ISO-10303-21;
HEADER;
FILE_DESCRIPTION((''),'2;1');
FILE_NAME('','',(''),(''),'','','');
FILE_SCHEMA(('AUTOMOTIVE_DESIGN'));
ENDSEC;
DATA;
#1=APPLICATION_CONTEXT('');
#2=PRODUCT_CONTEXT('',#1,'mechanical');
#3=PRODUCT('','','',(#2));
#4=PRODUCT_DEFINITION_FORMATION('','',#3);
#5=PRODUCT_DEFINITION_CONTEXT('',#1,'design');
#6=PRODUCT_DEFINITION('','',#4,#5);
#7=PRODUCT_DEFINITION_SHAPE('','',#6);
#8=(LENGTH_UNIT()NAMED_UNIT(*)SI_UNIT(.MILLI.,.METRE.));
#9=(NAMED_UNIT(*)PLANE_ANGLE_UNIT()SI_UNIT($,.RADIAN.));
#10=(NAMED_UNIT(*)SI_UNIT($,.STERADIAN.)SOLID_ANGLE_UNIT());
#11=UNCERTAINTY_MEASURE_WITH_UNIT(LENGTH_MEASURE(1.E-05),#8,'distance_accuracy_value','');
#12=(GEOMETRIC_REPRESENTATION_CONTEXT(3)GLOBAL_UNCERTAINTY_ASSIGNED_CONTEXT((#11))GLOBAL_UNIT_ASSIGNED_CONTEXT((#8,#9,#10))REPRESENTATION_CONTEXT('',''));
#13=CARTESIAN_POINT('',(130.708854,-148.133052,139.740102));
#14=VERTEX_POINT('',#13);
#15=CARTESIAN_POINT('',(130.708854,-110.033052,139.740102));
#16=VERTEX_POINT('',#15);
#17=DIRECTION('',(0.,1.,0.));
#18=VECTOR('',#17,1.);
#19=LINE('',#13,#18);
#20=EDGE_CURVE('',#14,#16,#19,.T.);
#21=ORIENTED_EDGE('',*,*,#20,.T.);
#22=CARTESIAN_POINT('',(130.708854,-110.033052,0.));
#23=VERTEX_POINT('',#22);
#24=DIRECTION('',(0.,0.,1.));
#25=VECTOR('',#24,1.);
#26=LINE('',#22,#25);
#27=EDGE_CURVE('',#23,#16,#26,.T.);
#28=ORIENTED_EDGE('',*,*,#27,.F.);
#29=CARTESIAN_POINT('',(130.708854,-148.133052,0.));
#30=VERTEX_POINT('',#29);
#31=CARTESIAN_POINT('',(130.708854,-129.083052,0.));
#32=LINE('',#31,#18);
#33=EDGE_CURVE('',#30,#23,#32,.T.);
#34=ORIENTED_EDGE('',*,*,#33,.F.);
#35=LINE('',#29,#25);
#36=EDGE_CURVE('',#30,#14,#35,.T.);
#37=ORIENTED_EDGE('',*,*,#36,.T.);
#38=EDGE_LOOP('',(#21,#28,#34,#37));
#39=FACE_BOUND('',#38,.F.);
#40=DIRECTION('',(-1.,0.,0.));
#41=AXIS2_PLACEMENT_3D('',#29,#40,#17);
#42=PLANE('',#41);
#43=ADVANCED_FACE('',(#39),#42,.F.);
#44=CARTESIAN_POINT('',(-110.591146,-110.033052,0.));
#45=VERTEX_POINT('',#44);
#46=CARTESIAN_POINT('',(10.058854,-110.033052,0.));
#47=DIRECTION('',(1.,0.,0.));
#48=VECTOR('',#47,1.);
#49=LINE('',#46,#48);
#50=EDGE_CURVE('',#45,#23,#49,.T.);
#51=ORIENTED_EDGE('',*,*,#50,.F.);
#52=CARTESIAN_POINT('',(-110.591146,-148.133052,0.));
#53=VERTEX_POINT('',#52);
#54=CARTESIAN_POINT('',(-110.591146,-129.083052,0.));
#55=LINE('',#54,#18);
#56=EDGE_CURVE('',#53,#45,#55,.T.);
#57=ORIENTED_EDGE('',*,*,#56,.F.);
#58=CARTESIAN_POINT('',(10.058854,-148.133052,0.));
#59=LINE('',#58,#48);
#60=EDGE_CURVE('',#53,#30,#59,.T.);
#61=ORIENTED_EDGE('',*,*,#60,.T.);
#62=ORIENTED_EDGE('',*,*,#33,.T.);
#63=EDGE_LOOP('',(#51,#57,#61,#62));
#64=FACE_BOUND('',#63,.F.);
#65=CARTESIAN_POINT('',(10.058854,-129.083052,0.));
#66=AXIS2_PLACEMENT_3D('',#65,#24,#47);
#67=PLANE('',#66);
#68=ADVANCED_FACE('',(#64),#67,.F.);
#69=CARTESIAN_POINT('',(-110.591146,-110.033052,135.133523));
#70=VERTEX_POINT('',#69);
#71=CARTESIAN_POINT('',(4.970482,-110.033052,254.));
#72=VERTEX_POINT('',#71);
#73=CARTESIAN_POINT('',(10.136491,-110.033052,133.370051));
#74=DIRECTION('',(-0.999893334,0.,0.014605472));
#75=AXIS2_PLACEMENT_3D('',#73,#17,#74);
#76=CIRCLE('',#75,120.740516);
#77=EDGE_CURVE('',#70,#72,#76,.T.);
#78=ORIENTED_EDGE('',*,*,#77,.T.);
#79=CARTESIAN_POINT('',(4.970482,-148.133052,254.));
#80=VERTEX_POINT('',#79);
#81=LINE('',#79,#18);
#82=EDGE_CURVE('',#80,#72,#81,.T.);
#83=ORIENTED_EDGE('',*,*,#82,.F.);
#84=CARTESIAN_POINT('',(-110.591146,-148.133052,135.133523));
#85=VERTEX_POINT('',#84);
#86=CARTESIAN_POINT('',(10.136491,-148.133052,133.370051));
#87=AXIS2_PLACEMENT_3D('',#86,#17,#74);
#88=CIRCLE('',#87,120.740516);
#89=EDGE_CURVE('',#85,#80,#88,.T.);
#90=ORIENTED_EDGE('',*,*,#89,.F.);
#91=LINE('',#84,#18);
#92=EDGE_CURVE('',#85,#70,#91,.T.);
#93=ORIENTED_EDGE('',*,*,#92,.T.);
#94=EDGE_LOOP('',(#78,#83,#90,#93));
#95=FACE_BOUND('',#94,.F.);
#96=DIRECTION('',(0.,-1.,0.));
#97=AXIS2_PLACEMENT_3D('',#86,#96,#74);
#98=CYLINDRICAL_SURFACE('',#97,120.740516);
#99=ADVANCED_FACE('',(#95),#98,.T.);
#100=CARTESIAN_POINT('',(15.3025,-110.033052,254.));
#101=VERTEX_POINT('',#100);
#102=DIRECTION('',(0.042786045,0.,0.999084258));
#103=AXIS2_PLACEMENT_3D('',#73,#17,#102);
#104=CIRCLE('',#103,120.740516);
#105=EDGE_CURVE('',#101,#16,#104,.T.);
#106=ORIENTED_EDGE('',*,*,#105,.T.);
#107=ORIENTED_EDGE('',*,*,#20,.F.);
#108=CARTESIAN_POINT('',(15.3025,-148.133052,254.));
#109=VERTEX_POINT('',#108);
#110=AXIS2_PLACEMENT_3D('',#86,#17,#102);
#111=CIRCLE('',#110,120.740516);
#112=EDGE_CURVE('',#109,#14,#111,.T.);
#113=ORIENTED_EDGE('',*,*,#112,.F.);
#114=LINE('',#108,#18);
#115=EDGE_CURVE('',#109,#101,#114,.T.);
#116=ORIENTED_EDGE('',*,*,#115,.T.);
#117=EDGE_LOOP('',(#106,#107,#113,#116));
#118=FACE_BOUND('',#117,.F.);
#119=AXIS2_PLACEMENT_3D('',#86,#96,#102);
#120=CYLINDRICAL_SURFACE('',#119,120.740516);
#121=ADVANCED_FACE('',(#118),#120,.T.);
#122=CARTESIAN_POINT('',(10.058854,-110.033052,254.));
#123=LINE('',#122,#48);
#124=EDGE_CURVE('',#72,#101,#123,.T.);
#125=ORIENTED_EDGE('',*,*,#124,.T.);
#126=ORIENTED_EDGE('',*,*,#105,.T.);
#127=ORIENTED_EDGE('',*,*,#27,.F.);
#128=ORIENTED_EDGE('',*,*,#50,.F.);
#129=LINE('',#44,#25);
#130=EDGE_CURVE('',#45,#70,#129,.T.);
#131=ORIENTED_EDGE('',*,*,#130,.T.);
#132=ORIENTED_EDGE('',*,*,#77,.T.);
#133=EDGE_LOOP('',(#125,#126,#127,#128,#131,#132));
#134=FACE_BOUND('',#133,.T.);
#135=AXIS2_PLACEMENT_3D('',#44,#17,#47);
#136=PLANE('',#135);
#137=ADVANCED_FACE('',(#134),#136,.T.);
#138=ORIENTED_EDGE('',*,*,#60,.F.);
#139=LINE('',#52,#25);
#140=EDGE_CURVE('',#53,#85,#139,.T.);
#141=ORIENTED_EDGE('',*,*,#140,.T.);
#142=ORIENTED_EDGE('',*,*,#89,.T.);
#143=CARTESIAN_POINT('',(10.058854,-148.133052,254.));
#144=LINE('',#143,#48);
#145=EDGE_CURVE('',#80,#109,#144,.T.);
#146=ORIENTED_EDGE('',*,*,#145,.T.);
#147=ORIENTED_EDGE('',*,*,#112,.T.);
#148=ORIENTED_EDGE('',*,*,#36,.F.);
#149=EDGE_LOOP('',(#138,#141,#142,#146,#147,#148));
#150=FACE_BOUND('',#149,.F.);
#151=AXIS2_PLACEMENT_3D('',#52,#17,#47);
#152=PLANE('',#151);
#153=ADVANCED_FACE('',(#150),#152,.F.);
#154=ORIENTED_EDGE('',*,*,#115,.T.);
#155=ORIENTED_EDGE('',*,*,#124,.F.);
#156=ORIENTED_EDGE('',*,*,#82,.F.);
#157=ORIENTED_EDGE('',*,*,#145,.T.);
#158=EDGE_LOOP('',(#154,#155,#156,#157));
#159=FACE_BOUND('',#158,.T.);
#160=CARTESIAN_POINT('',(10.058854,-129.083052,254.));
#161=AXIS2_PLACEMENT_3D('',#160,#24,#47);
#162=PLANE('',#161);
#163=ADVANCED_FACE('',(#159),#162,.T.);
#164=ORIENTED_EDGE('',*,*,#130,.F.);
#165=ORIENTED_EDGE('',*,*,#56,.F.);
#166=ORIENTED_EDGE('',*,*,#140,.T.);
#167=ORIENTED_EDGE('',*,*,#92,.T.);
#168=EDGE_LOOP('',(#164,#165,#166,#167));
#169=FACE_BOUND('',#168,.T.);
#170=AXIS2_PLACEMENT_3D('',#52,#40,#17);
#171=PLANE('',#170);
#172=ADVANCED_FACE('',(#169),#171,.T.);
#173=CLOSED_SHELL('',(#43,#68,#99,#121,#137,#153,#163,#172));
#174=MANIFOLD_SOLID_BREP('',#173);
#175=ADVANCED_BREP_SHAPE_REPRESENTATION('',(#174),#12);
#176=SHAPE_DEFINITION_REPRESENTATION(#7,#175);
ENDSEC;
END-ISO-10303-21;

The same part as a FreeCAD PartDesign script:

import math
import FreeCAD as App
import Part
import Sketcher
Q = App.Units.Quantity

doc = App.newDocument("Part")
body = doc.addObject("PartDesign::Body", "Body")

sketch1 = body.newObject("Sketcher::SketchObject", "Sketch")
sketch1.AttachmentSupport = (doc.getObject("XY_Plane"), [""])
sketch1.MapMode = "FlatFace"
sketch1.addGeometry([
    Part.LineSegment(App.Vector(-111, -110, 0), App.Vector(-111, -148, 0)),
    Part.LineSegment(App.Vector(-111, -148, 0), App.Vector(131, -148, 0)),
    Part.LineSegment(App.Vector(131, -148, 0), App.Vector(131, -110, 0)),
    Part.LineSegment(App.Vector(131, -110, 0), App.Vector(-111, -110, 0)),
], False)
sketch1.addConstraint([
    Sketcher.Constraint("Coincident", 0, 2, 1, 1),
    Sketcher.Constraint("Coincident", 1, 2, 2, 1),
    Sketcher.Constraint("Coincident", 2, 2, 3, 1),
    Sketcher.Constraint("Coincident", 3, 2, 0, 1),
    Sketcher.Constraint("Vertical", 0),
    Sketcher.Constraint("Horizontal", 1),
    Sketcher.Constraint("Vertical", 2),
    Sketcher.Constraint("Horizontal", 3),
    Sketcher.Constraint("DistanceX", 1, 1, 1, 2, Q("9.5 in")),
    Sketcher.Constraint("DistanceY", 0, 2, 0, 1, Q("1.5 in")),
    Sketcher.Constraint("DistanceX", 0, 2, -1, 1, Q("110.591146 mm")),
    Sketcher.Constraint("DistanceY", 0, 2, -1, 1, Q("148.133052 mm")),
])
pad1 = body.newObject("PartDesign::Pad", "Pad")
pad1.Profile = sketch1
pad1.Length = Q("10 in")

sketch2 = body.newObject("Sketcher::SketchObject", "Sketch001")
sketch2.AttachmentSupport = (doc.getObject("XZ_Plane"), [""])
sketch2.MapMode = "FlatFace"
sketch2.AttachmentOffset = App.Placement(App.Vector(0, 0, 148.133052), App.Rotation())
sketch2.addGeometry([
    Part.ArcOfCircle(Part.Circle(App.Vector(10, 133, 0), App.Vector(0, 0, 1), 121), math.radians(3), math.radians(88)),
    Part.LineSegment(App.Vector(131, 140, 0), App.Vector(131, 254, 0)),
    Part.LineSegment(App.Vector(131, 254, 0), App.Vector(15, 254, 0)),
    Part.ArcOfCircle(Part.Circle(App.Vector(10, 133, 0), App.Vector(0, 0, 1), 121), math.radians(92), math.radians(179)),
    Part.LineSegment(App.Vector(5, 254, 0), App.Vector(-111, 254, 0)),
    Part.LineSegment(App.Vector(-111, 254, 0), App.Vector(-111, 135, 0)),
], False)
sketch2.addConstraint([
    Sketcher.Constraint("Coincident", 0, 1, 1, 1),
    Sketcher.Constraint("Coincident", 1, 2, 2, 1),
    Sketcher.Constraint("Coincident", 2, 2, 0, 2),
    Sketcher.Constraint("Coincident", 3, 1, 4, 1),
    Sketcher.Constraint("Coincident", 4, 2, 5, 1),
    Sketcher.Constraint("Coincident", 5, 2, 3, 2),
    Sketcher.Constraint("Vertical", 1),
    Sketcher.Constraint("Horizontal", 2),
    Sketcher.Constraint("Horizontal", 4),
    Sketcher.Constraint("Vertical", 5),
    Sketcher.Constraint("Coincident", 3, 3, 0, 3),
    Sketcher.Constraint("Equal", 0, 3),
    Sketcher.Constraint("Horizontal", 2, 2, 3, 1),
    Sketcher.Constraint("DistanceY", -1, 1, 1, 2, Q("10 in")),
    Sketcher.Constraint("DistanceX", 4, 2, 1, 2, Q("9.5 in")),
    Sketcher.Constraint("Radius", 0, Q("120.740516 mm")),
    Sketcher.Constraint("DistanceX", 4, 2, 4, 1, Q("115.561628 mm")),
    Sketcher.Constraint("DistanceX", -1, 1, 2, 2, Q("15.3025 mm")),
    Sketcher.Constraint("DistanceX", 2, 2, 2, 1, Q("115.406354 mm")),
])
pocket1 = body.newObject("PartDesign::Pocket", "Pocket")
pocket1.Profile = sketch2
pocket1.Length = Q("1.5 in")

doc.recompute()
